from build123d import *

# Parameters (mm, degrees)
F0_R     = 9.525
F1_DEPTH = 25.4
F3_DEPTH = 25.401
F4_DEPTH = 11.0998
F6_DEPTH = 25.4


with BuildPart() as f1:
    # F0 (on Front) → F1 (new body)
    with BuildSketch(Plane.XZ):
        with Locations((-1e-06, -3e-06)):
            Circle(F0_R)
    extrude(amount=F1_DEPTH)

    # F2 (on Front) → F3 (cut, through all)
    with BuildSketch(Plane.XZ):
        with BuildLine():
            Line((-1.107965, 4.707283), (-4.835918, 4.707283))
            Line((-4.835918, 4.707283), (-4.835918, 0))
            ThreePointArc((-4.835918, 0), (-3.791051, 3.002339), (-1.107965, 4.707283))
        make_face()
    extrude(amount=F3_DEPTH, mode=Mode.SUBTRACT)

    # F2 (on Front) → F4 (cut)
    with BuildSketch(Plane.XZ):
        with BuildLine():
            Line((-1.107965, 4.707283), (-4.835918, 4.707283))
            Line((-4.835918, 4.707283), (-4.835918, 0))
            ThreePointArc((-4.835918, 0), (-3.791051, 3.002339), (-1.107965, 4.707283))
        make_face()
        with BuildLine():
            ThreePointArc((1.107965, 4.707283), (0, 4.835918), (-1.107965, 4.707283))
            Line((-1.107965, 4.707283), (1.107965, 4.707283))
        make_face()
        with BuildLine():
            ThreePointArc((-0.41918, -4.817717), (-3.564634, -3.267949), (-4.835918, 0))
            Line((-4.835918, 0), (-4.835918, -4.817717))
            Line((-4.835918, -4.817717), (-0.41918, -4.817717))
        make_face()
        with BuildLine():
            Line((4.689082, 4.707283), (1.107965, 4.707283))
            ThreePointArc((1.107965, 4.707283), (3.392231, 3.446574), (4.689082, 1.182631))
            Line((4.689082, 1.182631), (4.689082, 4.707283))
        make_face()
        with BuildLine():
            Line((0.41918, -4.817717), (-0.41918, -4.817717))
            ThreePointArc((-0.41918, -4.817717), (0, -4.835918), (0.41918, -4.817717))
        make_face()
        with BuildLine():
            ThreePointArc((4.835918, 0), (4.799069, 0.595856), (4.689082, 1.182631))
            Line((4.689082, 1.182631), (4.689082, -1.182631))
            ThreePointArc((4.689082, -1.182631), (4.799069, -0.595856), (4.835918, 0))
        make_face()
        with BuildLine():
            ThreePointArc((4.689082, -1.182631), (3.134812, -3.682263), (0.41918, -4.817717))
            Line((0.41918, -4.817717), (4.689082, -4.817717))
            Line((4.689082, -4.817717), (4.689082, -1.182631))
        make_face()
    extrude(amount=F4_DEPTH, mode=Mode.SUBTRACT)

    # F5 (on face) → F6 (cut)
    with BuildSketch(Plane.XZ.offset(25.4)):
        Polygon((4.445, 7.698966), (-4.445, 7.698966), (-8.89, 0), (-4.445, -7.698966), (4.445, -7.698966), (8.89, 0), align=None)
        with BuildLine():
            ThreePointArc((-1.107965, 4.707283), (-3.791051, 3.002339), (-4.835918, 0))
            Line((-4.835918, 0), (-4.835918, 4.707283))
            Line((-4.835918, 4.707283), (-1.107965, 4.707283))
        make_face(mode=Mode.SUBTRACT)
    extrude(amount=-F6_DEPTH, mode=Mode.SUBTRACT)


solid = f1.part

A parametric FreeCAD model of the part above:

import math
import FreeCAD as App
import Part
import Sketcher
Q = App.Units.Quantity


def add_polygon(sketch, points):
    """Adds a closed chain of lines whose ends are joined by coincident constraints."""
    first, n = sketch.GeometryCount, len(points)
    for a, b in zip(points, points[1:] + points[:1]):
        sketch.addGeometry(Part.LineSegment(App.Vector(*a, 0), App.Vector(*b, 0)), False)
    for i in range(n):
        sketch.addConstraint(Sketcher.Constraint("Coincident", first + i, 2, first + (i + 1) % n, 1))

doc = App.newDocument("Part")
params = doc.addObject("Spreadsheet::Sheet", "Params")
for row, (alias, value) in enumerate([
    ("sketch1_diameter", "0.75 in"),
    ("pad1_length", "1 in"),
    ("pocket2_length", "0.437 in"),
    ("sketch4_width", "0.35 in"),
    ("pocket3_length", "1 in"),
], start=1):
    params.set(f"A{row}", alias)
    params.set(f"B{row}", "=" + value)
    params.setAlias(f"B{row}", alias)

body = doc.addObject("PartDesign::Body", "Body")

# Sketch on XZ plane
sketch1 = doc.addObject("Sketcher::SketchObject", "Sketch")
body.addObject(sketch1)
sketch1.AttachmentSupport = (doc.XZ_Plane, [""])
sketch1.MapMode = "FlatFace"
sketch1.addGeometry(Part.Circle(App.Vector(0, 0, 0), App.Vector(0, 0, 1), 10), False)
sketch1.addConstraint([
    Sketcher.Constraint("Coincident", 0, 3, -1, 1),
    Sketcher.Constraint("Diameter", 0, Q("0.75 in")),
])
sketch1.setExpression("Constraints[1]", "Params.sketch1_diameter")
pad1 = doc.addObject("PartDesign::Pad", "Pad")
body.addObject(pad1)
pad1.Profile = sketch1
pad1.setExpression("Length", "Params.pad1_length")

# Sketch on XZ plane
sketch2 = doc.addObject("Sketcher::SketchObject", "Sketch001")
body.addObject(sketch2)
sketch2.AttachmentSupport = (doc.XZ_Plane, [""])
sketch2.MapMode = "FlatFace"
sketch2.addGeometry([
    Part.LineSegment(App.Vector(-1.1, 4.7, 0), App.Vector(-4.8, 4.7, 0)),
    Part.LineSegment(App.Vector(-4.8, 4.7, 0), App.Vector(-4.8, 0, 0)),
    Part.ArcOfCircle(Part.Circle(App.Vector(0, 0, 0), App.Vector(0, 0, 1), 4.8), math.radians(103), math.radians(180)),
], False)
sketch2.addConstraint([
    Sketcher.Constraint("Coincident", 0, 2, 1, 1),
    Sketcher.Constraint("Tangent", 1, 2, 2, 2),
    Sketcher.Constraint("Coincident", 2, 1, 0, 1),
    Sketcher.Constraint("Horizontal", 0),
    Sketcher.Constraint("Vertical", 1),
    Sketcher.Constraint("Coincident", 2, 3, -1, 1),
    Sketcher.Constraint("Radius", 2, Q("4.835916 mm")),
    Sketcher.Constraint("DistanceX", 0, 2, 0, 1, Q("3.727953 mm")),
])
pocket1 = doc.addObject("PartDesign::Pocket", "Pocket")
body.addObject(pocket1)
pocket1.Profile = sketch2
pocket1.Type = "ThroughAll"
pocket1.Reversed = True

# Sketch on XZ plane
sketch3 = doc.addObject("Sketcher::SketchObject", "Sketch002")
body.addObject(sketch3)
sketch3.AttachmentSupport = (doc.XZ_Plane, [""])
sketch3.MapMode = "FlatFace"
sketch3.addGeometry([
    Part.LineSegment(App.Vector(-1.1, 4.7, 0), App.Vector(-4.8, 4.7, 0)),  # 0
    Part.LineSegment(App.Vector(-4.8, 4.7, 0), App.Vector(-4.8, 0, 0)),  # 1
    Part.ArcOfCircle(Part.Circle(App.Vector(0, 0, 0), App.Vector(0, 0, 1), 4.8), math.radians(103), math.radians(180)),  # 2
    Part.ArcOfCircle(Part.Circle(App.Vector(0, 0, 0), App.Vector(0, 0, 1), 4.8), math.radians(77), math.radians(103)),  # 3
    Part.LineSegment(App.Vector(-1.1, 4.7, 0), App.Vector(1.1, 4.7, 0)),  # 4
    Part.ArcOfCircle(Part.Circle(App.Vector(0, 0, 0), App.Vector(0, 0, 1), 4.8), math.radians(180), math.radians(265)),  # 5
    Part.LineSegment(App.Vector(-4.8, 0, 0), App.Vector(-4.8, -4.8, 0)),  # 6
    Part.LineSegment(App.Vector(-4.8, -4.8, 0), App.Vector(-0.4, -4.8, 0)),  # 7
    Part.LineSegment(App.Vector(4.7, 4.7, 0), App.Vector(1.1, 4.7, 0)),  # 8
    Part.ArcOfCircle(Part.Circle(App.Vector(0, 0, 0), App.Vector(0, 0, 1), 4.8), math.radians(14), math.radians(77)),  # 9
    Part.LineSegment(App.Vector(4.7, 1.2, 0), App.Vector(4.7, 4.7, 0)),  # 10
    Part.LineSegment(App.Vector(0.4, -4.8, 0), App.Vector(-0.4, -4.8, 0)),  # 11
    Part.ArcOfCircle(Part.Circle(App.Vector(0, 0, 0), App.Vector(0, 0, 1), 4.8), math.radians(-94.97), math.radians(-85.03)),  # 12
    Part.ArcOfCircle(Part.Circle(App.Vector(0, 0, 0), App.Vector(0, 0, 1), 4.8), math.radians(0), math.radians(14.16)),  # 13
    Part.LineSegment(App.Vector(4.7, 1.2, 0), App.Vector(4.7, -1.2, 0)),  # 14
    Part.ArcOfCircle(Part.Circle(App.Vector(0, 0, 0), App.Vector(0, 0, 1), 4.8), math.radians(-14.16), math.radians(0)),  # 15
    Part.ArcOfCircle(Part.Circle(App.Vector(0, 0, 0), App.Vector(0, 0, 1), 4.8), math.radians(-85), math.radians(-14)),  # 16
    Part.LineSegment(App.Vector(0.4, -4.8, 0), App.Vector(4.7, -4.8, 0)),  # 17
    Part.LineSegment(App.Vector(4.7, -4.8, 0), App.Vector(4.7, -1.2, 0)),  # 18
], False)
sketch3.addConstraint([
    Sketcher.Constraint("Coincident", 0, 2, 1, 1),
    Sketcher.Constraint("Tangent", 1, 2, 2, 2),
    Sketcher.Constraint("Coincident", 2, 1, 0, 1),
    Sketcher.Constraint("Coincident", 3, 1, 4, 2),
    Sketcher.Constraint("Coincident", 4, 1, 3, 2),
    Sketcher.Constraint("Tangent", 5, 1, 6, 1),
    Sketcher.Constraint("Coincident", 6, 2, 7, 1),
    Sketcher.Constraint("Coincident", 7, 2, 5, 2),
    Sketcher.Constraint("Coincident", 8, 2, 9, 2),
    Sketcher.Constraint("Coincident", 9, 1, 10, 1),
    Sketcher.Constraint("Coincident", 10, 2, 8, 1),
    Sketcher.Constraint("Coincident", 11, 1, 12, 2),
    Sketcher.Constraint("Coincident", 12, 1, 11, 2),
    Sketcher.Constraint("Coincident", 13, 2, 14, 1),
    Sketcher.Constraint("Coincident", 14, 2, 15, 1),
    Sketcher.Constraint("Coincident", 15, 2, 13, 1),
    Sketcher.Constraint("Coincident", 16, 1, 17, 1),
    Sketcher.Constraint("Coincident", 17, 2, 18, 1),
    Sketcher.Constraint("Coincident", 18, 2, 16, 2),
    Sketcher.Constraint("Horizontal", 0),
    Sketcher.Constraint("Vertical", 1),
    Sketcher.Constraint("Horizontal", 4),
    Sketcher.Constraint("Vertical", 6),
    Sketcher.Constraint("Horizontal", 7),
    Sketcher.Constraint("Horizontal", 8),
    Sketcher.Constraint("Vertical", 10),
    Sketcher.Constraint("Horizontal", 11),
    Sketcher.Constraint("Vertical", 14),
    Sketcher.Constraint("Horizontal", 17),
    Sketcher.Constraint("Vertical", 18),
    Sketcher.Constraint("Coincident", 2, 3, -1, 1),
    Sketcher.Constraint("Coincident", 5, 3, -1, 1),
    Sketcher.Constraint("Coincident", 9, 3, -1, 1),
    Sketcher.Constraint("Coincident", 16, 3, -1, 1),
    Sketcher.Constraint("Coincident", 4, 1, 2, 1),
    Sketcher.Constraint("Coincident", 8, 2, 3, 1),
    Sketcher.Constraint("Coincident", 12, 1, 7, 2),
    Sketcher.Constraint("Coincident", 13, 2, 9, 1),
    Sketcher.Constraint("Coincident", 16, 1, 11, 1),
    Sketcher.Constraint("Coincident", 18, 2, 14, 2),
    Sketcher.Constraint("Equal", 5, 9),
    Sketcher.Constraint("Equal", 13, 15),
    Sketcher.Constraint("Equal", 9, 16),
    Sketcher.Constraint("Symmetric", 1, 2, 15, 2, -1, 1),
    Sketcher.Constraint("PointOnObject", 3, 3, -2),
    Sketcher.Constraint("Radius", 5, Q("4.835918 mm")),
    Sketcher.Constraint("Radius", 3, Q("4.835905 mm")),
    Sketcher.Constraint("Radius", 12, Q("4.836085 mm")),
    Sketcher.Constraint("Radius", 13, Q("4.835876 mm")),
    Sketcher.Constraint("DistanceX", 4, 1, 4, 2, Q("2.21593 mm")),
    Sketcher.Constraint("DistanceX", 7, 1, 7, 2, Q("4.416738 mm")),
    Sketcher.Constraint("DistanceY", 14, 2, 14, 1, Q("2.365262 mm")),
])
pocket2 = doc.addObject("PartDesign::Pocket", "Pocket001")
body.addObject(pocket2)
pocket2.Profile = sketch3
pocket2.setExpression("Length", "Params.pocket2_length")
pocket2.Reversed = True

# Sketch on XZ plane
sketch4 = doc.addObject("Sketcher::SketchObject", "Sketch003")
body.addObject(sketch4)
sketch4.AttachmentSupport = (doc.XZ_Plane, [""])
sketch4.MapMode = "FlatFace"
sketch4.AttachmentOffset = App.Placement(App.Vector(0, 0, 1 * 25.4), App.Rotation())
add_polygon(sketch4, [(4.4, 7.7), (-4.4, 7.7), (-8.9, 0), (-4.4, -7.7), (4.4, -7.7), (8.9, 0)])  # lines 0-5
sketch4.addGeometry(Part.LineSegment(App.Vector(-4.8, 4.7, 0), App.Vector(-1.1, 4.7, 0)), False)  # 6
sketch4.addGeometry(Part.ArcOfCircle(Part.Circle(App.Vector(0, 0, 0), App.Vector(0, 0, 1), 4.8), math.radians(103), math.radians(180)), False)  # 7
sketch4.addGeometry(Part.LineSegment(App.Vector(-4.8, 0, 0), App.Vector(-4.8, 4.7, 0)), False)  # 8
sketch4.addConstraint([
    Sketcher.Constraint("Coincident", 6, 2, 7, 1),
    Sketcher.Constraint("Tangent", 7, 2, 8, 1),
    Sketcher.Constraint("Coincident", 8, 2, 6, 1),
    Sketcher.Constraint("Horizontal", 0),
    Sketcher.Constraint("Horizontal", 3),
    Sketcher.Constraint("Horizontal", 6),
    Sketcher.Constraint("Vertical", 8),
    Sketcher.Constraint("Coincident", 7, 3, -1, 1),
    Sketcher.Constraint("Symmetric", 0, 2, 3, 2, -1, 1),
    Sketcher.Constraint("Symmetric", 1, 2, 4, 2, -1, 1),
    Sketcher.Constraint("PointOnObject", 1, 2, -1),
    Sketcher.Constraint("Parallel", 2, 5),
    Sketcher.Constraint("Vertical", 0, 2, 2, 2),
    Sketcher.Constraint("Angle", 1, Q("-119.999999 deg")),
    Sketcher.Constraint("DistanceX", 0, 2, 0, 1, Q("0.35 in")),
    Sketcher.Constraint("DistanceX", 1, 2, 4, 2, Q("0.7 in")),
    Sketcher.Constraint("Radius", 7, Q("4.835916 mm")),
    Sketcher.Constraint("DistanceX", 6, 1, 6, 2, Q("3.727953 mm")),
])
sketch4.setExpression("Constraints[20]", "Params.sketch4_width")
pocket3 = doc.addObject("PartDesign::Pocket", "Pocket002")
body.addObject(pocket3)
pocket3.Profile = sketch4
pocket3.setExpression("Length", "Params.pocket3_length")

doc.recompute()
